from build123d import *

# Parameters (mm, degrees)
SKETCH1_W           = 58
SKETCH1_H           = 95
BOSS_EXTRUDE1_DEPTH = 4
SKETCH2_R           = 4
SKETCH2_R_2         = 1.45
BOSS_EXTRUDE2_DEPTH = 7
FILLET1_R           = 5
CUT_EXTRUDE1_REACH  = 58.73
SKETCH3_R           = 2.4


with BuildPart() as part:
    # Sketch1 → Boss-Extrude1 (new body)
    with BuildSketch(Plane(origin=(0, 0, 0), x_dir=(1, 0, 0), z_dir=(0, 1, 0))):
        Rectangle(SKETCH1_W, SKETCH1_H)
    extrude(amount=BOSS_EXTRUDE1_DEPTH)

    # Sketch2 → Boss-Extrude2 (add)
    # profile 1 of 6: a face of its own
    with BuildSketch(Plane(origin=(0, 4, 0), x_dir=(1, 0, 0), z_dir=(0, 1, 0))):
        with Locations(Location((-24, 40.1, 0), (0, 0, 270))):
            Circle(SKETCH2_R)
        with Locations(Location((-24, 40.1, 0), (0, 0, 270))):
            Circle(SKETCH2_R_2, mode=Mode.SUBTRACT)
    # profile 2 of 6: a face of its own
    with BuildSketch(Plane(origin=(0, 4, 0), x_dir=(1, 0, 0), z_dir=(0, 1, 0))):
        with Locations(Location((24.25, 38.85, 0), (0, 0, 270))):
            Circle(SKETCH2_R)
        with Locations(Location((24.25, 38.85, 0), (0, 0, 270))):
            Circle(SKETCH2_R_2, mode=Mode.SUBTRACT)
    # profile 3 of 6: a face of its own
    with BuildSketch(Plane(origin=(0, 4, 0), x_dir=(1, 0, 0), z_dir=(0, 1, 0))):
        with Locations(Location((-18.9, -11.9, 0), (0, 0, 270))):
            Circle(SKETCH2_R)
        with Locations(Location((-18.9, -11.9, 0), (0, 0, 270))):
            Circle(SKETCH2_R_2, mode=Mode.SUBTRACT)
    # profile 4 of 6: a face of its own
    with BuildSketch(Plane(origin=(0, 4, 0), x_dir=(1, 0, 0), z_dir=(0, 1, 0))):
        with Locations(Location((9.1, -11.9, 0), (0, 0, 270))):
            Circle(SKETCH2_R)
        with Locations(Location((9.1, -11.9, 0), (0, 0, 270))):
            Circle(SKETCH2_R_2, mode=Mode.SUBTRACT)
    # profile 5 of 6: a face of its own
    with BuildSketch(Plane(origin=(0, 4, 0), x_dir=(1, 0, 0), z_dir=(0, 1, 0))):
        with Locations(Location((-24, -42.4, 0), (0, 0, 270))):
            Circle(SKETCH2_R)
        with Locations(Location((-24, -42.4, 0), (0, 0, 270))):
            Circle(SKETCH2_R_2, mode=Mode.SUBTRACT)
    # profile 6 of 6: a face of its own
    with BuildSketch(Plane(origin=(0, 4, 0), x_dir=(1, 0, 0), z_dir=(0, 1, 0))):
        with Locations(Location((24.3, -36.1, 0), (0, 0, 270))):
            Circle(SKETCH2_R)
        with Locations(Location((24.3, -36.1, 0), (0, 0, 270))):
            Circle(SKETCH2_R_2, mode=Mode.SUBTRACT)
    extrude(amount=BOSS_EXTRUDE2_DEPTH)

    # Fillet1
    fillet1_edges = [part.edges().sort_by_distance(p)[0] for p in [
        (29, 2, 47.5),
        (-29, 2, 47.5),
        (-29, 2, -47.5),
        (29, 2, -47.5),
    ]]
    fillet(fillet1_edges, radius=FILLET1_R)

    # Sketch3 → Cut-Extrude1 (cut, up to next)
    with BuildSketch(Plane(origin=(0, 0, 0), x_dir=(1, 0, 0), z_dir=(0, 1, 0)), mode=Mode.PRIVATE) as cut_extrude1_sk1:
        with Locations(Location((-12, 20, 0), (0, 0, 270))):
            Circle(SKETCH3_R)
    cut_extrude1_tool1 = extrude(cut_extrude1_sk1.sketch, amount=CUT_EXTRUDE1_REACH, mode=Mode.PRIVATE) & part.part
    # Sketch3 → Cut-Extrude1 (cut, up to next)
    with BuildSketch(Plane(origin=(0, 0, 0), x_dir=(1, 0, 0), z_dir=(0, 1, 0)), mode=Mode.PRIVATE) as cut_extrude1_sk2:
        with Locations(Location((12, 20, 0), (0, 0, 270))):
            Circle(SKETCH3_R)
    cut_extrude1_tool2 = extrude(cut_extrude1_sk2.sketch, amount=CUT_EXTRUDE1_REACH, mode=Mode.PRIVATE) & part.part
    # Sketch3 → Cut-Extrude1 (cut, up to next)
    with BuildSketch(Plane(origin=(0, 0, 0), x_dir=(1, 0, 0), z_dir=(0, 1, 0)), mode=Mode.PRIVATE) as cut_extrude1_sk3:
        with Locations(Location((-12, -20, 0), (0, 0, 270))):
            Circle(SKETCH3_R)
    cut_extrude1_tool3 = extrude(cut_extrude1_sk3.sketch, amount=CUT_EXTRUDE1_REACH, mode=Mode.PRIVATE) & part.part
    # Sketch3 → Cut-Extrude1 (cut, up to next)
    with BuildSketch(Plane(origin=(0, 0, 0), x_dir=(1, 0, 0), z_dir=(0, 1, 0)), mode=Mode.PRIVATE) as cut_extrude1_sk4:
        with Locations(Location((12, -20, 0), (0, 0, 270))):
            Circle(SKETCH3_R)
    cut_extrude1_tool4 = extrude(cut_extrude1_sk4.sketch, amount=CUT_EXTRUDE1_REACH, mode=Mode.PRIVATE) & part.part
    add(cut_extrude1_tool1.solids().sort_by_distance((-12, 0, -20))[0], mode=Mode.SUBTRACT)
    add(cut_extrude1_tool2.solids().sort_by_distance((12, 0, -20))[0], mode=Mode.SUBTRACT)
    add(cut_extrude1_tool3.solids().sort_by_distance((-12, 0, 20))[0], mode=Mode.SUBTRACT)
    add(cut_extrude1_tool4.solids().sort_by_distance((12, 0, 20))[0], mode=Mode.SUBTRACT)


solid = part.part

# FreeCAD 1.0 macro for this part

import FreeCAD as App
import Part
import Sketcher
from FreeCAD import Vector


def edges_at(feature, points):
    """Names of the edges that pass closest to the given points."""
    edges = feature.Shape.Edges
    near = lambda p: min(range(len(edges)), key=lambda i: edges[i].distToShape(Part.Vertex(*p))[0])
    return sorted({f"Edge{near(p) + 1}" for p in points})

doc = App.newDocument("Part")
params = doc.addObject("Spreadsheet::Sheet", "Params")
for row, (alias, value) in enumerate([
    ("sketch1_width", "58 mm"),
    ("sketch1_height", "95 mm"),
    ("pad1_length", "4 mm"),
    ("sketch2_diameter", "8 mm"),
    ("sketch2_diameter2", "2.9 mm"),
    ("pad2_length", "7 mm"),
    ("fillet_radius", "5 mm"),
    ("sketch3_diameter", "4.8 mm"),
    ("sketch4_diameter", "4.8 mm"),
    ("sketch5_diameter", "4.8 mm"),
    ("sketch6_diameter", "4.8 mm"),
], start=1):
    params.set(f"A{row}", alias)
    params.set(f"B{row}", "=" + value)
    params.setAlias(f"B{row}", alias)

body = doc.addObject("PartDesign::Body", "Body")

# Sketch on XZ plane
sketch1 = doc.addObject("Sketcher::SketchObject", "Sketch")
body.addObject(sketch1)
sketch1.AttachmentSupport = (doc.XZ_Plane, [""])
sketch1.MapMode = "FlatFace"
sketch1.addGeometry([
    Part.LineSegment(Vector(-29, -48, 0), Vector(-29, 48, 0)),
    Part.LineSegment(Vector(-29, 48, 0), Vector(29, 48, 0)),
    Part.LineSegment(Vector(29, 48, 0), Vector(29, -48, 0)),
    Part.LineSegment(Vector(29, -48, 0), Vector(-29, -48, 0)),
], False)
sketch1.addConstraint([
    Sketcher.Constraint("Coincident", 0, 2, 1, 1),
    Sketcher.Constraint("Coincident", 1, 2, 2, 1),
    Sketcher.Constraint("Coincident", 2, 2, 3, 1),
    Sketcher.Constraint("Coincident", 3, 2, 0, 1),
    Sketcher.Constraint("Vertical", 0),
    Sketcher.Constraint("Horizontal", 1),
    Sketcher.Constraint("Vertical", 2),
    Sketcher.Constraint("Horizontal", 3),
    Sketcher.Constraint("Symmetric", 0, 2, 2, 2, -1, 1),
    Sketcher.Constraint("DistanceX", 1, 1, 1, 2, 58.0),
    Sketcher.Constraint("DistanceY", 0, 1, 0, 2, 95.0),
])
sketch1.setExpression("Constraints[9]", "Params.sketch1_width")
sketch1.setExpression("Constraints[10]", "Params.sketch1_height")
pad1 = doc.addObject("PartDesign::Pad", "Pad")
body.addObject(pad1)
pad1.Profile = sketch1
pad1.setExpression("Length", "Params.pad1_length")
pad1.Reversed = True

# Sketch on XZ plane
sketch2 = doc.addObject("Sketcher::SketchObject", "Sketch001")
body.addObject(sketch2)
sketch2.AttachmentSupport = (doc.XZ_Plane, [""])
sketch2.MapMode = "FlatFace"
sketch2.AttachmentOffset = App.Placement(Vector(0, 0, -4), App.Rotation())
sketch2.addGeometry([
    Part.Circle(Vector(-24, -40.1, 0), Vector(0, 0, 1), 4),  # 0
    Part.Circle(Vector(-24, -40.1, 0), Vector(0, 0, 1), 1.4),  # 1
    Part.Circle(Vector(24.2, -38.9, 0), Vector(0, 0, 1), 4),  # 2
    Part.Circle(Vector(24.2, -38.9, 0), Vector(0, 0, 1), 1.4),  # 3
    Part.Circle(Vector(-18.9, 11.9, 0), Vector(0, 0, 1), 4),  # 4
    Part.Circle(Vector(-18.9, 11.9, 0), Vector(0, 0, 1), 1.4),  # 5
    Part.Circle(Vector(9.1, 11.9, 0), Vector(0, 0, 1), 4),  # 6
    Part.Circle(Vector(9.1, 11.9, 0), Vector(0, 0, 1), 1.4),  # 7
    Part.Circle(Vector(-24, 42.4, 0), Vector(0, 0, 1), 4),  # 8
    Part.Circle(Vector(-24, 42.4, 0), Vector(0, 0, 1), 1.4),  # 9
    Part.Circle(Vector(24.3, 36.1, 0), Vector(0, 0, 1), 4),  # 10
    Part.Circle(Vector(24.3, 36.1, 0), Vector(0, 0, 1), 1.4),  # 11
], False)
sketch2.addConstraint([
    Sketcher.Constraint("Coincident", 1, 3, 0, 3),
    Sketcher.Constraint("Coincident", 3, 3, 2, 3),
    Sketcher.Constraint("Coincident", 5, 3, 4, 3),
    Sketcher.Constraint("Coincident", 7, 3, 6, 3),
    Sketcher.Constraint("Coincident", 9, 3, 8, 3),
    Sketcher.Constraint("Coincident", 11, 3, 10, 3),
    Sketcher.Constraint("Equal", 0, 2),
    Sketcher.Constraint("Equal", 1, 3),
    Sketcher.Constraint("Equal", 2, 4),
    Sketcher.Constraint("Equal", 3, 5),
    Sketcher.Constraint("Equal", 4, 6),
    Sketcher.Constraint("Equal", 5, 7),
    Sketcher.Constraint("Equal", 6, 8),
    Sketcher.Constraint("Equal", 7, 9),
    Sketcher.Constraint("Equal", 8, 10),
    Sketcher.Constraint("Equal", 9, 11),
    Sketcher.Constraint("Horizontal", 5, 3, 6, 3),
    Sketcher.Constraint("Vertical", 1, 3, 8, 3),
    Sketcher.Constraint("Diameter", 0, 8.0),
    Sketcher.Constraint("Diameter", 1, 2.9),
    Sketcher.Constraint("DistanceX", 0, 3, -1, 1, 24.0),
    Sketcher.Constraint("DistanceY", 0, 3, 4, 3, 52.0),
    Sketcher.Constraint("DistanceX", 4, 3, 6, 3, 28.0),
    Sketcher.Constraint("DistanceY", 0, 3, -1, 1, 40.1),
    Sketcher.Constraint("DistanceX", 4, 3, -1, 1, 18.9),
    Sketcher.Constraint("DistanceY", -1, 1, 8, 3, 42.4),
    Sketcher.Constraint("DistanceX", -1, 1, 10, 3, 24.3),
    Sketcher.Constraint("DistanceY", -1, 1, 10, 3, 36.1),
    Sketcher.Constraint("DistanceX", -1, 1, 2, 3, 24.25),
    Sketcher.Constraint("DistanceY", 2, 3, -1, 1, 38.85),
])
sketch2.setExpression("Constraints[18]", "Params.sketch2_diameter")
sketch2.setExpression("Constraints[19]", "Params.sketch2_diameter2")
pad2 = doc.addObject("PartDesign::Pad", "Pad001")
body.addObject(pad2)
pad2.Profile = sketch2
pad2.setExpression("Length", "Params.pad2_length")
pad2.Reversed = True
doc.recompute()

fillet = doc.addObject("PartDesign::Fillet", "Fillet")
body.addObject(fillet)
fillet.Base = (pad2, edges_at(pad2, [
    (29, 2, 47.5),
    (-29, 2, 47.5),
    (-29, 2, -47.5),
    (29, 2, -47.5),
]))
fillet.setExpression("Radius", "Params.fillet_radius")

# Sketch on XZ plane
sketch3 = doc.addObject("Sketcher::SketchObject", "Sketch002")
body.addObject(sketch3)
sketch3.AttachmentSupport = (doc.XZ_Plane, [""])
sketch3.MapMode = "FlatFace"
sketch3.addGeometry(Part.Circle(Vector(-12, -20, 0), Vector(0, 0, 1), 2.4), False)
sketch3.addConstraint([
    Sketcher.Constraint("Diameter", 0, 4.8),
    Sketcher.Constraint("DistanceX", 0, 3, -1, 1, 12.0),
    Sketcher.Constraint("DistanceY", 0, 3, -1, 1, 20.0),
])
sketch3.setExpression("Constraints[0]", "Params.sketch3_diameter")
pocket1 = doc.addObject("PartDesign::Pocket", "Pocket")
body.addObject(pocket1)
pocket1.Profile = sketch3
pocket1.Type = "UpToFirst"

# Sketch on XZ plane
sketch4 = doc.addObject("Sketcher::SketchObject", "Sketch003")
body.addObject(sketch4)
sketch4.AttachmentSupport = (doc.XZ_Plane, [""])
sketch4.MapMode = "FlatFace"
sketch4.addGeometry(Part.Circle(Vector(12, -20, 0), Vector(0, 0, 1), 2.4), False)
sketch4.addConstraint([
    Sketcher.Constraint("Diameter", 0, 4.8),
    Sketcher.Constraint("DistanceX", -1, 1, 0, 3, 12.0),
    Sketcher.Constraint("DistanceY", 0, 3, -1, 1, 20.0),
])
sketch4.setExpression("Constraints[0]", "Params.sketch4_diameter")
pocket2 = doc.addObject("PartDesign::Pocket", "Pocket001")
body.addObject(pocket2)
pocket2.Profile = sketch4
pocket2.Type = "UpToFirst"

# Sketch on XZ plane
sketch5 = doc.addObject("Sketcher::SketchObject", "Sketch004")
body.addObject(sketch5)
sketch5.AttachmentSupport = (doc.XZ_Plane, [""])
sketch5.MapMode = "FlatFace"
sketch5.addGeometry(Part.Circle(Vector(-12, 20, 0), Vector(0, 0, 1), 2.4), False)
sketch5.addConstraint([
    Sketcher.Constraint("Diameter", 0, 4.8),
    Sketcher.Constraint("DistanceX", 0, 3, -1, 1, 12.0),
    Sketcher.Constraint("DistanceY", -1, 1, 0, 3, 20.0),
])
sketch5.setExpression("Constraints[0]", "Params.sketch5_diameter")
pocket3 = doc.addObject("PartDesign::Pocket", "Pocket002")
body.addObject(pocket3)
pocket3.Profile = sketch5
pocket3.Type = "UpToFirst"

# Sketch on XZ plane
sketch6 = doc.addObject("Sketcher::SketchObject", "Sketch005")
body.addObject(sketch6)
sketch6.AttachmentSupport = (doc.XZ_Plane, [""])
sketch6.MapMode = "FlatFace"
sketch6.addGeometry(Part.Circle(Vector(12, 20, 0), Vector(0, 0, 1), 2.4), False)
sketch6.addConstraint([
    Sketcher.Constraint("Diameter", 0, 4.8),
    Sketcher.Constraint("DistanceX", -1, 1, 0, 3, 12.0),
    Sketcher.Constraint("DistanceY", -1, 1, 0, 3, 20.0),
])
sketch6.setExpression("Constraints[0]", "Params.sketch6_diameter")
pocket4 = doc.addObject("PartDesign::Pocket", "Pocket003")
body.addObject(pocket4)
pocket4.Profile = sketch6
pocket4.Type = "UpToFirst"

doc.recompute()
